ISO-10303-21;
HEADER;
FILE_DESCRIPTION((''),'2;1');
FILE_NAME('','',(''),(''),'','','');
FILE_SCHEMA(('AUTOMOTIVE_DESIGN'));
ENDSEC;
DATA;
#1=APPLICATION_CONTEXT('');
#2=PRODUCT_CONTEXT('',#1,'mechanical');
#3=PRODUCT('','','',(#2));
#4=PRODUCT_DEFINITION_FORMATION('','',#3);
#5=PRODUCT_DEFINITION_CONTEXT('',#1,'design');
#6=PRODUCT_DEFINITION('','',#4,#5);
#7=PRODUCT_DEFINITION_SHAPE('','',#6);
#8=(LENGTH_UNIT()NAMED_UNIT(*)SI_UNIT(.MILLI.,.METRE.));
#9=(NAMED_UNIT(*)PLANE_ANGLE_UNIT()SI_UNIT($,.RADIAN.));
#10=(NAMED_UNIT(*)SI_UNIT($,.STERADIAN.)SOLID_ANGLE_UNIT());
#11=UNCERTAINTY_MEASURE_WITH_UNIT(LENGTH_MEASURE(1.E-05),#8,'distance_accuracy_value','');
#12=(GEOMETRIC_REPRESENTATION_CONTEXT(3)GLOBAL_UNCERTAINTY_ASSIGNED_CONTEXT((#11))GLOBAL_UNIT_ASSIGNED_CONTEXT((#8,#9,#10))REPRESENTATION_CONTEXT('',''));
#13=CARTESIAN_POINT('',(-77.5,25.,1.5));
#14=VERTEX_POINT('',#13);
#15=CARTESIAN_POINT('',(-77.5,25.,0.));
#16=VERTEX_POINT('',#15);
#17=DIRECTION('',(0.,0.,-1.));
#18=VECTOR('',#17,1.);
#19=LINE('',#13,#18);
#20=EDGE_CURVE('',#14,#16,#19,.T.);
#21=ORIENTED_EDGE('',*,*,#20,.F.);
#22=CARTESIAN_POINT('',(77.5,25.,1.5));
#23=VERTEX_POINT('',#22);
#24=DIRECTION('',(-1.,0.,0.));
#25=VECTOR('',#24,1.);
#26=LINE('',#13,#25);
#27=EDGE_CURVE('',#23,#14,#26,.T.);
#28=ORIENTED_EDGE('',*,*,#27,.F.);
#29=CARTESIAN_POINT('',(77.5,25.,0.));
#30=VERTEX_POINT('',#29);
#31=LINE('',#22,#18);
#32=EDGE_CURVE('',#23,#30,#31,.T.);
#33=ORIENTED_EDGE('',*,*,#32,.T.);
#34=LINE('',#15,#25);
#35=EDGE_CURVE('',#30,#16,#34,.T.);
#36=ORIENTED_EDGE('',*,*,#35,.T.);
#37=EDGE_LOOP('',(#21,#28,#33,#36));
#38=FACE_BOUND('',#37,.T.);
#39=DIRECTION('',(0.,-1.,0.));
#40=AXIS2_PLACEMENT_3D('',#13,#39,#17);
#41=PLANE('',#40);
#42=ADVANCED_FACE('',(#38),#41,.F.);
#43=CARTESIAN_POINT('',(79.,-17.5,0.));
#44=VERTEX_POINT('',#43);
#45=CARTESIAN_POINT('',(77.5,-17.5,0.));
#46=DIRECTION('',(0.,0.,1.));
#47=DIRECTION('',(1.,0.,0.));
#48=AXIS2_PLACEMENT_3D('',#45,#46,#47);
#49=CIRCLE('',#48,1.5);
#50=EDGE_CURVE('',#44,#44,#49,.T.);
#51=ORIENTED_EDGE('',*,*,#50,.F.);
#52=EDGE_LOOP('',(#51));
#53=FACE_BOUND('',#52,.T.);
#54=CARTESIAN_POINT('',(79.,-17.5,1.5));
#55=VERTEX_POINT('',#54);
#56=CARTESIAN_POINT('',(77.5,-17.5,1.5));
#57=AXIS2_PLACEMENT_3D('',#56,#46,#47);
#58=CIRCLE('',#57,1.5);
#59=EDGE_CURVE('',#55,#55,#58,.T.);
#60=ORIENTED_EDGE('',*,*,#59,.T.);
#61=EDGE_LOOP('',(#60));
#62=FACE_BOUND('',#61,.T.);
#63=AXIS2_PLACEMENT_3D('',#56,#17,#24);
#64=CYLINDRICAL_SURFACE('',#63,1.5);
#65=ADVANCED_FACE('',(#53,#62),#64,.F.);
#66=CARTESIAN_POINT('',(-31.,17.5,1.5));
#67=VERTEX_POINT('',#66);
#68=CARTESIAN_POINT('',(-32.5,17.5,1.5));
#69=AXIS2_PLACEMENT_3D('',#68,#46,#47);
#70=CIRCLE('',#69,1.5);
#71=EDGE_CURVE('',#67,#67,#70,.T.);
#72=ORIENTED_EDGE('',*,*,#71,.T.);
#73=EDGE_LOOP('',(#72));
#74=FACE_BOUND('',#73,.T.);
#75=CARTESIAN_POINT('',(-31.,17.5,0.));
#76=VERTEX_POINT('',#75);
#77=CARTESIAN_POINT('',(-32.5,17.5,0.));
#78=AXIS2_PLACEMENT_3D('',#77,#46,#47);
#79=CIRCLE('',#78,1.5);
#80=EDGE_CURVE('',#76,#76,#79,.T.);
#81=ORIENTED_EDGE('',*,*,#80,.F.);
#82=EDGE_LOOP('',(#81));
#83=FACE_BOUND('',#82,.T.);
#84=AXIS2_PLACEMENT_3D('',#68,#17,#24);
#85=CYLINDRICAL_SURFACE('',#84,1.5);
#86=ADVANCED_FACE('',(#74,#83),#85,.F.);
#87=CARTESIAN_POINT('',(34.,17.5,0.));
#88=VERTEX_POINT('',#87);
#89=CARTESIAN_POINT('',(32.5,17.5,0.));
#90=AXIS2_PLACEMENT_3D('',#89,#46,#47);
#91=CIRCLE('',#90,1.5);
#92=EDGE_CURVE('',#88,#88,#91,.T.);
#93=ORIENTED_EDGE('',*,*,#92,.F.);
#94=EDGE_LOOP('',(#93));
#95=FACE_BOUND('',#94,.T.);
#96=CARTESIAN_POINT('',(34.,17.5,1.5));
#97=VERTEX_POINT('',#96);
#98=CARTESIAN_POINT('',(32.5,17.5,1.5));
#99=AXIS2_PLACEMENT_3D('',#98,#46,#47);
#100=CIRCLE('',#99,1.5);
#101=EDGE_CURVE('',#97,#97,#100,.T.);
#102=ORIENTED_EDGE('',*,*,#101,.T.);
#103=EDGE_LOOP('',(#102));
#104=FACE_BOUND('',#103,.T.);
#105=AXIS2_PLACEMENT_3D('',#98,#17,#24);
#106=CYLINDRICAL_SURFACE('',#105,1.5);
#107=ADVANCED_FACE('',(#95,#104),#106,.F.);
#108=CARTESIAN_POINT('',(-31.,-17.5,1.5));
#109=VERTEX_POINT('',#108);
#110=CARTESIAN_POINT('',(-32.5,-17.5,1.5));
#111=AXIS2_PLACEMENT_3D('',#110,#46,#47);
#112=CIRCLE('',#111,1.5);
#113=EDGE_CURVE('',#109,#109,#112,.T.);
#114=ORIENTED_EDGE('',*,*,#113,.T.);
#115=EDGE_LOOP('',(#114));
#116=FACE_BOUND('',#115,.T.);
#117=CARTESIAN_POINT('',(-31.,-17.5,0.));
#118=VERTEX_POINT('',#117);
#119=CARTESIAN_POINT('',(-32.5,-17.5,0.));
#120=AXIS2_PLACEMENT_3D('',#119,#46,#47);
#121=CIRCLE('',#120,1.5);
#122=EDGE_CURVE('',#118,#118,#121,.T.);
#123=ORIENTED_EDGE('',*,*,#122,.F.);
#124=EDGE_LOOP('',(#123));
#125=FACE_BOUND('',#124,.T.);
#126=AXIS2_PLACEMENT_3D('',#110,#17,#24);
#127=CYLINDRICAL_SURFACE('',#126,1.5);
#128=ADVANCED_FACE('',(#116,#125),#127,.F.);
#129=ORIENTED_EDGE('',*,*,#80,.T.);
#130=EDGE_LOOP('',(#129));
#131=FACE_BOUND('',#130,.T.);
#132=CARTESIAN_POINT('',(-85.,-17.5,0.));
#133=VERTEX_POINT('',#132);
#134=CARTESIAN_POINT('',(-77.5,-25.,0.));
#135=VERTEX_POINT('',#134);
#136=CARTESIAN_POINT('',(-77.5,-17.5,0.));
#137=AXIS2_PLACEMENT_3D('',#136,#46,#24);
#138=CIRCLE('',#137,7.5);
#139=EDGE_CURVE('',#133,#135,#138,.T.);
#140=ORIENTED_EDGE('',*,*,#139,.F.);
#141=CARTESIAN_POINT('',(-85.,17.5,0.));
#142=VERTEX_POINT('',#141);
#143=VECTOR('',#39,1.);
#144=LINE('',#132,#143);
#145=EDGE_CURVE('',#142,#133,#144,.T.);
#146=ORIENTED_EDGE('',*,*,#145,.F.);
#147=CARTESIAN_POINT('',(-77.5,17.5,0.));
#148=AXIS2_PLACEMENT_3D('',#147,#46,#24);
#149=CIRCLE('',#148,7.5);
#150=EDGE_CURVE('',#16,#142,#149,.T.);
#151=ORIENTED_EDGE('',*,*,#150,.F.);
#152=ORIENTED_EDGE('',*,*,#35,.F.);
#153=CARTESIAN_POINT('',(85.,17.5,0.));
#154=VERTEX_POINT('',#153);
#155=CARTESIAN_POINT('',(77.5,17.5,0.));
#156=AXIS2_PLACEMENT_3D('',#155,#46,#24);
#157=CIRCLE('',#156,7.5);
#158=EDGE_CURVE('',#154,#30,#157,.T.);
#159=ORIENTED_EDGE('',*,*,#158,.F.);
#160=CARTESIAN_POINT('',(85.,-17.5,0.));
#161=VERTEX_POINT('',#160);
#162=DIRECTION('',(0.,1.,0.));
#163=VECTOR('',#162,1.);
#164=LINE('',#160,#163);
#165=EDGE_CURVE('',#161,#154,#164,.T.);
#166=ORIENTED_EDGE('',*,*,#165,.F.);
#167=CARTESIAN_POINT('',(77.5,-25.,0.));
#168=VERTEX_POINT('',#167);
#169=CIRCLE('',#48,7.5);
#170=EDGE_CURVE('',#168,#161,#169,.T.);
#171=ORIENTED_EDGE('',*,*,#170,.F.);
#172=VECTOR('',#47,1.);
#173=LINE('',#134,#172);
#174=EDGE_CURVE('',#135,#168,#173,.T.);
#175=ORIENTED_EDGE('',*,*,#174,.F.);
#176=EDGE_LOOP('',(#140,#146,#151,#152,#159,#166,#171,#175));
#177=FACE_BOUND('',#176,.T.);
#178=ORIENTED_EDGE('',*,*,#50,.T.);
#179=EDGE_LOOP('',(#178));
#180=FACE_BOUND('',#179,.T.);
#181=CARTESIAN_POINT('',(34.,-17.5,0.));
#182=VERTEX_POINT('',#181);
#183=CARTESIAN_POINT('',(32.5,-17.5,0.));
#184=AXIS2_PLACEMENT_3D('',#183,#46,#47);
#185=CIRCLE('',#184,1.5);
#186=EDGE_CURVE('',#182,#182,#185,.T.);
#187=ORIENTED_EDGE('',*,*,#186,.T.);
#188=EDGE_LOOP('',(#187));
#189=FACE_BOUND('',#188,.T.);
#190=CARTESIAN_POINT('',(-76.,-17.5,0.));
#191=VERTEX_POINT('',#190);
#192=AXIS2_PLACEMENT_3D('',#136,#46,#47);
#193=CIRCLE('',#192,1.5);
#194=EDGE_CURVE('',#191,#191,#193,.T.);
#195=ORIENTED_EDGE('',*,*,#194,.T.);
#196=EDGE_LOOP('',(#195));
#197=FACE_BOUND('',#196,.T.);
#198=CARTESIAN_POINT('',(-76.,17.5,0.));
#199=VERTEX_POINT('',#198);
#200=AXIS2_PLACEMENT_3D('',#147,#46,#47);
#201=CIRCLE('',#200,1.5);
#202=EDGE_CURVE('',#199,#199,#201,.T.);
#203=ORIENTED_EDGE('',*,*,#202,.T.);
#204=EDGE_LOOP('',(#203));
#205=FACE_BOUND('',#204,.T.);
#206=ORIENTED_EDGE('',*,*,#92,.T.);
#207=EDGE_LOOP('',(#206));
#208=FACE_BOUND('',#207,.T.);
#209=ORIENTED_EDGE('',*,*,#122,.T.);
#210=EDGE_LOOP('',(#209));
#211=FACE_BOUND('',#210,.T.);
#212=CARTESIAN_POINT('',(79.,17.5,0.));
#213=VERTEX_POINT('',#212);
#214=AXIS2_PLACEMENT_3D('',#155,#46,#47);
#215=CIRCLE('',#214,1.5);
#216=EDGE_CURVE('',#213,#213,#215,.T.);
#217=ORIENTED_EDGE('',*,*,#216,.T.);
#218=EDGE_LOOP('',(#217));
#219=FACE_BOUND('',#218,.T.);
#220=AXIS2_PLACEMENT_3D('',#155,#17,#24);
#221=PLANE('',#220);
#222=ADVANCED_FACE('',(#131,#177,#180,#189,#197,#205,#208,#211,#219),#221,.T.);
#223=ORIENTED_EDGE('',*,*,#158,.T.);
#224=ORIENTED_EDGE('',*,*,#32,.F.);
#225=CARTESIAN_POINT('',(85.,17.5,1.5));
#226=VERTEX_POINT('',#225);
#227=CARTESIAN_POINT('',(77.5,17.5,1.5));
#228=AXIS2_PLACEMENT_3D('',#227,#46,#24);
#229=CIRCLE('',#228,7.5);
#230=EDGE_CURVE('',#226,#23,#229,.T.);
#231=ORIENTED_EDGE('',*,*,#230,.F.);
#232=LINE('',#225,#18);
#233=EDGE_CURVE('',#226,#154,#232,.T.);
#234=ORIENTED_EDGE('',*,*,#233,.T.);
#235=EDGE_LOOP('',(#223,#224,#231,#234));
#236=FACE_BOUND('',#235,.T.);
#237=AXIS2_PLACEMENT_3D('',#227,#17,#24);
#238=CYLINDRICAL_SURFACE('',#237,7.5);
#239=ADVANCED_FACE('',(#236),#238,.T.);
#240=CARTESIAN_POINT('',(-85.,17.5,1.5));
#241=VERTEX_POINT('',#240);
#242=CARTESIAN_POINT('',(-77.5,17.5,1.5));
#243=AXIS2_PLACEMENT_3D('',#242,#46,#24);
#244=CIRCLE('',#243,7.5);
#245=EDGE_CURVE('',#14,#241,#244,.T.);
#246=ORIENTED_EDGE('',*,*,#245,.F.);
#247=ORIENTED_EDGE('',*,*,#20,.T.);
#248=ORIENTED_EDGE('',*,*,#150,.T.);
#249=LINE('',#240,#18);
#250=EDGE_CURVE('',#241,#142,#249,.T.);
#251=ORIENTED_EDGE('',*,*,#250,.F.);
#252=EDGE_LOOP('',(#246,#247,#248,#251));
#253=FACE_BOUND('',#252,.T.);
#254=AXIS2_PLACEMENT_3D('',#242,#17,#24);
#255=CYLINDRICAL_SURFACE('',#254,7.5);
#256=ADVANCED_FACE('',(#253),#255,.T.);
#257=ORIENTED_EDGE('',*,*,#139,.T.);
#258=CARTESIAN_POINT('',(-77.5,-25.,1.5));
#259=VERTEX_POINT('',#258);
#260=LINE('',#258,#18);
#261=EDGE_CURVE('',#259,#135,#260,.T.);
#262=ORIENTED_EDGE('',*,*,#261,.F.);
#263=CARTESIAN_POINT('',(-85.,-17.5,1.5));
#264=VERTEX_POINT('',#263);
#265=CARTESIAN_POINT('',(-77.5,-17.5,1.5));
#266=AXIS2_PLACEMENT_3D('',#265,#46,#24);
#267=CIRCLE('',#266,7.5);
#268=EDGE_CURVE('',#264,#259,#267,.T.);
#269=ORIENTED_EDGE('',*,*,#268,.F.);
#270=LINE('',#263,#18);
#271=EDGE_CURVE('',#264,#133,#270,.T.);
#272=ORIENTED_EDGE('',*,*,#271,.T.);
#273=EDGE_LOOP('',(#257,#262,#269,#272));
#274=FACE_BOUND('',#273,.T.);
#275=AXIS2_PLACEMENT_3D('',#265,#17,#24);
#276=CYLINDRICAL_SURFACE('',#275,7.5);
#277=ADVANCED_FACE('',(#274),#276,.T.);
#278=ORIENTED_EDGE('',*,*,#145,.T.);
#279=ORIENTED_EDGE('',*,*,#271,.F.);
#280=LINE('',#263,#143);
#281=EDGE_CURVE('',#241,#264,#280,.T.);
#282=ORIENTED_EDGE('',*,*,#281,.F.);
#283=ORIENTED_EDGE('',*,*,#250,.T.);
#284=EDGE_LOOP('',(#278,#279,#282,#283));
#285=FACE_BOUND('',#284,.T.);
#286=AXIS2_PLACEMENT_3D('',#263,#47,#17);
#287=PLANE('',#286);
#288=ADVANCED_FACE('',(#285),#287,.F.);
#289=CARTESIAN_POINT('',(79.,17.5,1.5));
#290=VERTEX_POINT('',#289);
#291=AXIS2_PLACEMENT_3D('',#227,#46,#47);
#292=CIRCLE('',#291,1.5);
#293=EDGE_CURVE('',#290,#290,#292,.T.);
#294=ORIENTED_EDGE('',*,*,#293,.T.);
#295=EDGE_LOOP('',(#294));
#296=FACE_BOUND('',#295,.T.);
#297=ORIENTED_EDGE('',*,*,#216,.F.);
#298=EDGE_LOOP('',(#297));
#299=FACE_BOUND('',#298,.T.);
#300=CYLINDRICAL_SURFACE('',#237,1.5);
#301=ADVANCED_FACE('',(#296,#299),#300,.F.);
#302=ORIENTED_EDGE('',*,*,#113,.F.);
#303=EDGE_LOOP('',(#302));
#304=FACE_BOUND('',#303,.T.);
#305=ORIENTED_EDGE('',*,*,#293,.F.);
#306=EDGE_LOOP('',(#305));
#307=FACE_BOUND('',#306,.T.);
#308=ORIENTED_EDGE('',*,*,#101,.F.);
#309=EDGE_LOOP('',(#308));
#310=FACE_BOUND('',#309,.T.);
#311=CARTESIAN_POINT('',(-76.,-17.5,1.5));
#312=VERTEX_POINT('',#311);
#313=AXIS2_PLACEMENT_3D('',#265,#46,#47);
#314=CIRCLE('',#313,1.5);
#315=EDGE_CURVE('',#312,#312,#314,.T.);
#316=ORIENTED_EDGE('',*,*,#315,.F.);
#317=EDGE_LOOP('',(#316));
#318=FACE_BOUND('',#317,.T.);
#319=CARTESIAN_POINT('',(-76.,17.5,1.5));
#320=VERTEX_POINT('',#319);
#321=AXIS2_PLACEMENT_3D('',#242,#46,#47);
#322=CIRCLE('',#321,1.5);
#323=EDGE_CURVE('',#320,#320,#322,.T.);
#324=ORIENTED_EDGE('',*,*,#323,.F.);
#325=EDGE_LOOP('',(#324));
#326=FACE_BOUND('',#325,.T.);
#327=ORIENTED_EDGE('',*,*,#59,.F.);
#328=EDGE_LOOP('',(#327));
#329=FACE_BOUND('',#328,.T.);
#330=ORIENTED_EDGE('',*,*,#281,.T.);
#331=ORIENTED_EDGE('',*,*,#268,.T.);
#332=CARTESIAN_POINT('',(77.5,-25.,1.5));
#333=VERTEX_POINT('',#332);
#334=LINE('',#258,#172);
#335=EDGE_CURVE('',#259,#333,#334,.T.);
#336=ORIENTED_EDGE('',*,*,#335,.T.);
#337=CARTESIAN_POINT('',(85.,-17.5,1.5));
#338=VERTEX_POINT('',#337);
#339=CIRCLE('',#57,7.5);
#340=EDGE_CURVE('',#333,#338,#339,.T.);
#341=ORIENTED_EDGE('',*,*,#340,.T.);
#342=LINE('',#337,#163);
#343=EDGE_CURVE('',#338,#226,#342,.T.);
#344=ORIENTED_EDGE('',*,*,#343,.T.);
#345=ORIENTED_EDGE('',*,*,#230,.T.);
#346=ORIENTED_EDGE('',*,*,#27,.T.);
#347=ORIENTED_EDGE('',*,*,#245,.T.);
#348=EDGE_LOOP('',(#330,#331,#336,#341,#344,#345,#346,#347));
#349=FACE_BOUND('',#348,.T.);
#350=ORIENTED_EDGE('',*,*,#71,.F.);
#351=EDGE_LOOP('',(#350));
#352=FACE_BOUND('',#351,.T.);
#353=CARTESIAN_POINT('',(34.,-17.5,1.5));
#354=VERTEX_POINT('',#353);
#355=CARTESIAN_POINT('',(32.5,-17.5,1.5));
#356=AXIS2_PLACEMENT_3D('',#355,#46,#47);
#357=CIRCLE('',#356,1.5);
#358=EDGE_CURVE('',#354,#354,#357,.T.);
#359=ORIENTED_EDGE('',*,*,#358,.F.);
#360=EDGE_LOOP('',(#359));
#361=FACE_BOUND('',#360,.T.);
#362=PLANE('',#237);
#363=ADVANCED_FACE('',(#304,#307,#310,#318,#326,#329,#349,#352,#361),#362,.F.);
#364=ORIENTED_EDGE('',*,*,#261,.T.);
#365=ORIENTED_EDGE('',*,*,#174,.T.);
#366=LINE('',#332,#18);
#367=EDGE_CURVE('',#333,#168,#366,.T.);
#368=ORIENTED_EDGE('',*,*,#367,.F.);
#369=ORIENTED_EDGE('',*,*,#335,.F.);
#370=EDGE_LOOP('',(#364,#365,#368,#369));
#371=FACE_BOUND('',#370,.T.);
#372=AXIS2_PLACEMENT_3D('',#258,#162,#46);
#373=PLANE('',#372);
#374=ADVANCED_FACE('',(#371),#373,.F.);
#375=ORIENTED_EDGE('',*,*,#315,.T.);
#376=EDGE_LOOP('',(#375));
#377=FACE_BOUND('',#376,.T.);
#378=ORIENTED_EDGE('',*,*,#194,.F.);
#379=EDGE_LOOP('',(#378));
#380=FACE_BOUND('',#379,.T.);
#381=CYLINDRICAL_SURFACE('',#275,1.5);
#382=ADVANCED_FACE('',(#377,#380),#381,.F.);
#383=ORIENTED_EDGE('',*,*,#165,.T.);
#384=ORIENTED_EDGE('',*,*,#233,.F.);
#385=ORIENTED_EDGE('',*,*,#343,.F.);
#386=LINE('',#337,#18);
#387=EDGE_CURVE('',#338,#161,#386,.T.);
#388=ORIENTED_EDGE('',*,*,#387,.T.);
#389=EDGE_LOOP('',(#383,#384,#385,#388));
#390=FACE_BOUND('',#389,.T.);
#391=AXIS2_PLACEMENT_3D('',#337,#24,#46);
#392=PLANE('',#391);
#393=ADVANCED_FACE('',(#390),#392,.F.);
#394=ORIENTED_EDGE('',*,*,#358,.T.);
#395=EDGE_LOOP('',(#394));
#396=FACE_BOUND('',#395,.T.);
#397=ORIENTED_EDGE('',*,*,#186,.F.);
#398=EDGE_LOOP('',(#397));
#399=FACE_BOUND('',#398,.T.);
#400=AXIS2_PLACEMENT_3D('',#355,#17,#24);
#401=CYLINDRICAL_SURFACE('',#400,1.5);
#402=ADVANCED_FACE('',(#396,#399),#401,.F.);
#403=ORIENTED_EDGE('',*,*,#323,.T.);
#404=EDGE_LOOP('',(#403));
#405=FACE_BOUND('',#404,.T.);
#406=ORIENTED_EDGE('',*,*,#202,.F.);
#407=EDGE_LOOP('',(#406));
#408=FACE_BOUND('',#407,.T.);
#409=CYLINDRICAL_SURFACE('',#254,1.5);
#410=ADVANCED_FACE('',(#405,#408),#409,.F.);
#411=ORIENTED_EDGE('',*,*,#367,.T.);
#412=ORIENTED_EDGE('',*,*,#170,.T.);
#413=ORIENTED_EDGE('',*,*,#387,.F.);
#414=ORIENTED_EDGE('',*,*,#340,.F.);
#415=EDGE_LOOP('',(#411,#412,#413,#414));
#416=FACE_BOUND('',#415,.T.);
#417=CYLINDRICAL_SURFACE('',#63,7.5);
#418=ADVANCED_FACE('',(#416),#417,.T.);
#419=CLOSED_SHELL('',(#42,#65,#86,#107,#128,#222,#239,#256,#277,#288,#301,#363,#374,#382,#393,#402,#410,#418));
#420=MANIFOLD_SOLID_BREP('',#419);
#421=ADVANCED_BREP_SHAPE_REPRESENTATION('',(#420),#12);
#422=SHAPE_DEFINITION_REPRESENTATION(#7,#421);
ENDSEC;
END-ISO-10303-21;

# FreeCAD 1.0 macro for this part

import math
import FreeCAD as App
import Part
import Sketcher
from FreeCAD import Vector

doc = App.newDocument("Part")
body = doc.addObject("PartDesign::Body", "Body")

# Sketch on XY plane
sketch1 = body.newObject("Sketcher::SketchObject", "Sketch")
sketch1.AttachmentSupport = (doc.getObject("XY_Plane"), [""])
sketch1.MapMode = "FlatFace"
sketch1.addGeometry([
    Part.LineSegment(Vector(-77.5, -25, 0), Vector(77.5, -25, 0)),  # 0
    Part.ArcOfCircle(Part.Circle(Vector(77.5, -17.5, 0), Vector(0, 0, 1), 7.5), math.radians(-90), math.radians(0)),  # 1
    Part.LineSegment(Vector(85, -17.5, 0), Vector(85, 17.5, 0)),  # 2
    Part.ArcOfCircle(Part.Circle(Vector(77.5, 17.5, 0), Vector(0, 0, 1), 7.5), math.radians(0), math.radians(90)),  # 3
    Part.LineSegment(Vector(77.5, 25, 0), Vector(-77.5, 25, 0)),  # 4
    Part.ArcOfCircle(Part.Circle(Vector(-77.5, 17.5, 0), Vector(0, 0, 1), 7.5), math.radians(90), math.radians(180)),  # 5
    Part.LineSegment(Vector(-85, 17.5, 0), Vector(-85, -17.5, 0)),  # 6
    Part.ArcOfCircle(Part.Circle(Vector(-77.5, -17.5, 0), Vector(0, 0, 1), 7.5), math.radians(180), math.radians(270)),  # 7
    Part.Circle(Vector(-77.5, -17.5, 0), Vector(0, 0, 1), 1.5),  # 8
    Part.Circle(Vector(-32.5, -17.5, 0), Vector(0, 0, 1), 1.5),  # 9
    Part.Circle(Vector(32.5, -17.5, 0), Vector(0, 0, 1), 1.5),  # 10
    Part.Circle(Vector(77.5, -17.5, 0), Vector(0, 0, 1), 1.5),  # 11
    Part.Circle(Vector(-77.5, 17.5, 0), Vector(0, 0, 1), 1.5),  # 12
    Part.Circle(Vector(-32.5, 17.5, 0), Vector(0, 0, 1), 1.5),  # 13
    Part.Circle(Vector(32.5, 17.5, 0), Vector(0, 0, 1), 1.5),  # 14
    Part.Circle(Vector(77.5, 17.5, 0), Vector(0, 0, 1), 1.5),  # 15
], False)
sketch1.addConstraint([
    Sketcher.Constraint("Tangent", 0, 2, 1, 1),
    Sketcher.Constraint("Tangent", 1, 2, 2, 1),
    Sketcher.Constraint("Tangent", 2, 2, 3, 1),
    Sketcher.Constraint("Tangent", 3, 2, 4, 1),
    Sketcher.Constraint("Tangent", 4, 2, 5, 1),
    Sketcher.Constraint("Tangent", 5, 2, 6, 1),
    Sketcher.Constraint("Tangent", 6, 2, 7, 1),
    Sketcher.Constraint("Tangent", 7, 2, 0, 1),
    Sketcher.Constraint("Horizontal", 0),
    Sketcher.Constraint("Vertical", 2),
    Sketcher.Constraint("Horizontal", 4),
    Sketcher.Constraint("Vertical", 6),
    Sketcher.Constraint("Coincident", 8, 3, 7, 3),
    Sketcher.Constraint("Coincident", 11, 3, 1, 3),
    Sketcher.Constraint("Coincident", 12, 3, 5, 3),
    Sketcher.Constraint("Coincident", 15, 3, 3, 3),
    Sketcher.Constraint("Equal", 1, 3),
    Sketcher.Constraint("Equal", 3, 5),
    Sketcher.Constraint("Equal", 5, 7),
    Sketcher.Constraint("Equal", 8, 9),
    Sketcher.Constraint("Equal", 9, 10),
    Sketcher.Constraint("Equal", 10, 11),
    Sketcher.Constraint("Equal", 11, 12),
    Sketcher.Constraint("Equal", 12, 13),
    Sketcher.Constraint("Equal", 13, 14),
    Sketcher.Constraint("Equal", 14, 15),
    Sketcher.Constraint("Symmetric", 1, 3, 5, 3, -1, 1),
    Sketcher.Constraint("Symmetric", 10, 3, 13, 3, -1, 1),
    Sketcher.Constraint("Symmetric", 9, 3, 14, 3, -1, 1),
    Sketcher.Constraint("Symmetric", 9, 3, 10, 3, -2),
    Sketcher.Constraint("Horizontal", 8, 3, 9, 3),
    Sketcher.Constraint("Diameter", 8, 3.0),
    Sketcher.Constraint("Radius", 1, 7.5),
    Sketcher.Constraint("DistanceX", 0, 1, 0, 2, 155.0),
    Sketcher.Constraint("DistanceY", 2, 1, 2, 2, 35.0),
    Sketcher.Constraint("DistanceX", 7, 3, 9, 3, 45.0),
])
pad1 = body.newObject("PartDesign::Pad", "Pad")
pad1.Profile = sketch1
pad1.Length = 1.5

doc.recompute()
